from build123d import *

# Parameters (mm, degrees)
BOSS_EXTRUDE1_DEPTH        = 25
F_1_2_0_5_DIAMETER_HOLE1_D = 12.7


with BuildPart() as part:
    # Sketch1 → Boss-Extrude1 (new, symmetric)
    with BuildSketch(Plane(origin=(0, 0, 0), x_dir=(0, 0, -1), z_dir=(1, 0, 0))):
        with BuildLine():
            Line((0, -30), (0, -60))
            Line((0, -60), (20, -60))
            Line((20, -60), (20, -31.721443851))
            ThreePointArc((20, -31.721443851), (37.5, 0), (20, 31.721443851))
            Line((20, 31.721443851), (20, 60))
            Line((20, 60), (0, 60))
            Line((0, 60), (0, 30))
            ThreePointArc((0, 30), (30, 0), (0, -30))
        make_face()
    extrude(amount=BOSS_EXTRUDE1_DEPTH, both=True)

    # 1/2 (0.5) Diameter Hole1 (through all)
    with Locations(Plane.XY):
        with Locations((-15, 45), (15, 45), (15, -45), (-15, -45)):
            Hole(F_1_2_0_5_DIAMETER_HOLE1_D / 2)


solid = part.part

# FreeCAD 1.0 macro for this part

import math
import FreeCAD as App
import Part
import Sketcher
from FreeCAD import Vector

doc = App.newDocument("Part")
params = doc.addObject("Spreadsheet::Sheet", "Params")
for row, (alias, value) in enumerate([
    ("sketch1_radius", "30 mm"),
    ("sketch1_radius2", "37.5 mm"),
    ("sketch1_width", "30 mm"),
    ("sketch1_height", "20 mm"),
    ("pad1_length", "50 mm"),
    ("sketch2_diameter", "12.7 mm"),
    ("hole_diameter", "12.7 mm"),
], start=1):
    params.set(f"A{row}", alias)
    params.set(f"B{row}", "=" + value)
    params.setAlias(f"B{row}", alias)

body = doc.addObject("PartDesign::Body", "Body")

sketch1 = body.newObject("Sketcher::SketchObject", "Sketch")
sketch1.AttachmentSupport = (doc.getObject("YZ_Plane"), [""])
sketch1.MapMode = "FlatFace"
sketch1.addGeometry(Part.LineSegment(Vector(-30, 0, 0), Vector(-60, 0, 0)), False)
sketch1.addGeometry(Part.LineSegment(Vector(-60, 0, 0), Vector(-60, -20, 0)), False)
sketch1.addGeometry(Part.LineSegment(Vector(-60, -20, 0), Vector(-32, -20, 0)), False)
sketch1.addGeometry(Part.ArcOfCircle(Part.Circle(Vector(0, 0, 0), Vector(0, 0, 1), 38), math.radians(-148), math.radians(-32)), False)
sketch1.addGeometry(Part.LineSegment(Vector(32, -20, 0), Vector(60, -20, 0)), False)
sketch1.addGeometry(Part.LineSegment(Vector(60, -20, 0), Vector(60, 0, 0)), False)
sketch1.addGeometry(Part.LineSegment(Vector(60, 0, 0), Vector(30, 0, 0)), False)
sketch1.addGeometry(Part.ArcOfCircle(Part.Circle(Vector(0, 0, 0), Vector(0, 0, 1), 30), math.radians(180), math.radians(360)), False)
sketch1.addConstraint(Sketcher.Constraint("Coincident", 0, 2, 1, 1))
sketch1.addConstraint(Sketcher.Constraint("Coincident", 1, 2, 2, 1))
sketch1.addConstraint(Sketcher.Constraint("Coincident", 2, 2, 3, 1))
sketch1.addConstraint(Sketcher.Constraint("Coincident", 3, 2, 4, 1))
sketch1.addConstraint(Sketcher.Constraint("Coincident", 4, 2, 5, 1))
sketch1.addConstraint(Sketcher.Constraint("Coincident", 5, 2, 6, 1))
sketch1.addConstraint(Sketcher.Constraint("Coincident", 6, 2, 7, 2))
sketch1.addConstraint(Sketcher.Constraint("Coincident", 7, 1, 0, 1))
sketch1.addConstraint(Sketcher.Constraint("Horizontal", 0))
sketch1.addConstraint(Sketcher.Constraint("Vertical", 1))
sketch1.addConstraint(Sketcher.Constraint("Horizontal", 2))
sketch1.addConstraint(Sketcher.Constraint("Horizontal", 4))
sketch1.addConstraint(Sketcher.Constraint("Vertical", 5))
sketch1.addConstraint(Sketcher.Constraint("Horizontal", 6))
sketch1.addConstraint(Sketcher.Constraint("Coincident", 3, 3, -1, 1))
sketch1.addConstraint(Sketcher.Constraint("Coincident", 7, 3, -1, 1))
sketch1.addConstraint(Sketcher.Constraint("Symmetric", 0, 2, 5, 2, -1, 1))
sketch1.addConstraint(Sketcher.Constraint("PointOnObject", 0, 2, -1))
sketch1.addConstraint(Sketcher.Constraint("Horizontal", 2, 2, 3, 2))
sketch1.addConstraint(Sketcher.Constraint("Radius", 7, 30.0))
sketch1.addConstraint(Sketcher.Constraint("Radius", 3, 37.5))
sketch1.addConstraint(Sketcher.Constraint("DistanceX", 0, 2, 0, 1, 30.0))
sketch1.addConstraint(Sketcher.Constraint("DistanceY", 1, 2, 1, 1, 20.0))
sketch1.setExpression("Constraints[19]", "Params.sketch1_radius")
sketch1.setExpression("Constraints[20]", "Params.sketch1_radius2")
sketch1.setExpression("Constraints[21]", "Params.sketch1_width")
sketch1.setExpression("Constraints[22]", "Params.sketch1_height")
pad1 = body.newObject("PartDesign::Pad", "Pad")
pad1.Profile = sketch1
pad1.setExpression("Length", "Params.pad1_length")
pad1.Midplane = True

sketch2 = body.newObject("Sketcher::SketchObject", "Sketch001")
sketch2.AttachmentSupport = (doc.getObject("XY_Plane"), [""])
sketch2.MapMode = "FlatFace"
sketch2.addGeometry(Part.Circle(Vector(-15, 45, 0), Vector(0, 0, 1), 6), False)
sketch2.addGeometry(Part.Circle(Vector(15, 45, 0), Vector(0, 0, 1), 6), False)
sketch2.addGeometry(Part.Circle(Vector(15, -45, 0), Vector(0, 0, 1), 6), False)
sketch2.addGeometry(Part.Circle(Vector(-15, -45, 0), Vector(0, 0, 1), 6), False)
sketch2.addConstraint(Sketcher.Constraint("Equal", 0, 1))
sketch2.addConstraint(Sketcher.Constraint("Equal", 1, 2))
sketch2.addConstraint(Sketcher.Constraint("Equal", 2, 3))
sketch2.addConstraint(Sketcher.Constraint("Symmetric", 0, 3, 2, 3, -1, 1))
sketch2.addConstraint(Sketcher.Constraint("Symmetric", 1, 3, 3, 3, -1, 1))
sketch2.addConstraint(Sketcher.Constraint("Symmetric", 0, 3, 1, 3, -2))
sketch2.addConstraint(Sketcher.Constraint("Diameter", 0, 12.7))
sketch2.addConstraint(Sketcher.Constraint("DistanceX", 0, 3, -1, 1, 15.0))
sketch2.addConstraint(Sketcher.Constraint("DistanceY", -1, 1, 0, 3, 45.0))
sketch2.setExpression("Constraints[6]", "Params.sketch2_diameter")
doc.recompute()
hole = body.newObject("PartDesign::Hole", "Hole")
hole.Profile = sketch2
hole.ThreadType = "None"
hole.setExpression("Diameter", "Params.hole_diameter")
hole.DepthType = "ThroughAll"

doc.recompute()
